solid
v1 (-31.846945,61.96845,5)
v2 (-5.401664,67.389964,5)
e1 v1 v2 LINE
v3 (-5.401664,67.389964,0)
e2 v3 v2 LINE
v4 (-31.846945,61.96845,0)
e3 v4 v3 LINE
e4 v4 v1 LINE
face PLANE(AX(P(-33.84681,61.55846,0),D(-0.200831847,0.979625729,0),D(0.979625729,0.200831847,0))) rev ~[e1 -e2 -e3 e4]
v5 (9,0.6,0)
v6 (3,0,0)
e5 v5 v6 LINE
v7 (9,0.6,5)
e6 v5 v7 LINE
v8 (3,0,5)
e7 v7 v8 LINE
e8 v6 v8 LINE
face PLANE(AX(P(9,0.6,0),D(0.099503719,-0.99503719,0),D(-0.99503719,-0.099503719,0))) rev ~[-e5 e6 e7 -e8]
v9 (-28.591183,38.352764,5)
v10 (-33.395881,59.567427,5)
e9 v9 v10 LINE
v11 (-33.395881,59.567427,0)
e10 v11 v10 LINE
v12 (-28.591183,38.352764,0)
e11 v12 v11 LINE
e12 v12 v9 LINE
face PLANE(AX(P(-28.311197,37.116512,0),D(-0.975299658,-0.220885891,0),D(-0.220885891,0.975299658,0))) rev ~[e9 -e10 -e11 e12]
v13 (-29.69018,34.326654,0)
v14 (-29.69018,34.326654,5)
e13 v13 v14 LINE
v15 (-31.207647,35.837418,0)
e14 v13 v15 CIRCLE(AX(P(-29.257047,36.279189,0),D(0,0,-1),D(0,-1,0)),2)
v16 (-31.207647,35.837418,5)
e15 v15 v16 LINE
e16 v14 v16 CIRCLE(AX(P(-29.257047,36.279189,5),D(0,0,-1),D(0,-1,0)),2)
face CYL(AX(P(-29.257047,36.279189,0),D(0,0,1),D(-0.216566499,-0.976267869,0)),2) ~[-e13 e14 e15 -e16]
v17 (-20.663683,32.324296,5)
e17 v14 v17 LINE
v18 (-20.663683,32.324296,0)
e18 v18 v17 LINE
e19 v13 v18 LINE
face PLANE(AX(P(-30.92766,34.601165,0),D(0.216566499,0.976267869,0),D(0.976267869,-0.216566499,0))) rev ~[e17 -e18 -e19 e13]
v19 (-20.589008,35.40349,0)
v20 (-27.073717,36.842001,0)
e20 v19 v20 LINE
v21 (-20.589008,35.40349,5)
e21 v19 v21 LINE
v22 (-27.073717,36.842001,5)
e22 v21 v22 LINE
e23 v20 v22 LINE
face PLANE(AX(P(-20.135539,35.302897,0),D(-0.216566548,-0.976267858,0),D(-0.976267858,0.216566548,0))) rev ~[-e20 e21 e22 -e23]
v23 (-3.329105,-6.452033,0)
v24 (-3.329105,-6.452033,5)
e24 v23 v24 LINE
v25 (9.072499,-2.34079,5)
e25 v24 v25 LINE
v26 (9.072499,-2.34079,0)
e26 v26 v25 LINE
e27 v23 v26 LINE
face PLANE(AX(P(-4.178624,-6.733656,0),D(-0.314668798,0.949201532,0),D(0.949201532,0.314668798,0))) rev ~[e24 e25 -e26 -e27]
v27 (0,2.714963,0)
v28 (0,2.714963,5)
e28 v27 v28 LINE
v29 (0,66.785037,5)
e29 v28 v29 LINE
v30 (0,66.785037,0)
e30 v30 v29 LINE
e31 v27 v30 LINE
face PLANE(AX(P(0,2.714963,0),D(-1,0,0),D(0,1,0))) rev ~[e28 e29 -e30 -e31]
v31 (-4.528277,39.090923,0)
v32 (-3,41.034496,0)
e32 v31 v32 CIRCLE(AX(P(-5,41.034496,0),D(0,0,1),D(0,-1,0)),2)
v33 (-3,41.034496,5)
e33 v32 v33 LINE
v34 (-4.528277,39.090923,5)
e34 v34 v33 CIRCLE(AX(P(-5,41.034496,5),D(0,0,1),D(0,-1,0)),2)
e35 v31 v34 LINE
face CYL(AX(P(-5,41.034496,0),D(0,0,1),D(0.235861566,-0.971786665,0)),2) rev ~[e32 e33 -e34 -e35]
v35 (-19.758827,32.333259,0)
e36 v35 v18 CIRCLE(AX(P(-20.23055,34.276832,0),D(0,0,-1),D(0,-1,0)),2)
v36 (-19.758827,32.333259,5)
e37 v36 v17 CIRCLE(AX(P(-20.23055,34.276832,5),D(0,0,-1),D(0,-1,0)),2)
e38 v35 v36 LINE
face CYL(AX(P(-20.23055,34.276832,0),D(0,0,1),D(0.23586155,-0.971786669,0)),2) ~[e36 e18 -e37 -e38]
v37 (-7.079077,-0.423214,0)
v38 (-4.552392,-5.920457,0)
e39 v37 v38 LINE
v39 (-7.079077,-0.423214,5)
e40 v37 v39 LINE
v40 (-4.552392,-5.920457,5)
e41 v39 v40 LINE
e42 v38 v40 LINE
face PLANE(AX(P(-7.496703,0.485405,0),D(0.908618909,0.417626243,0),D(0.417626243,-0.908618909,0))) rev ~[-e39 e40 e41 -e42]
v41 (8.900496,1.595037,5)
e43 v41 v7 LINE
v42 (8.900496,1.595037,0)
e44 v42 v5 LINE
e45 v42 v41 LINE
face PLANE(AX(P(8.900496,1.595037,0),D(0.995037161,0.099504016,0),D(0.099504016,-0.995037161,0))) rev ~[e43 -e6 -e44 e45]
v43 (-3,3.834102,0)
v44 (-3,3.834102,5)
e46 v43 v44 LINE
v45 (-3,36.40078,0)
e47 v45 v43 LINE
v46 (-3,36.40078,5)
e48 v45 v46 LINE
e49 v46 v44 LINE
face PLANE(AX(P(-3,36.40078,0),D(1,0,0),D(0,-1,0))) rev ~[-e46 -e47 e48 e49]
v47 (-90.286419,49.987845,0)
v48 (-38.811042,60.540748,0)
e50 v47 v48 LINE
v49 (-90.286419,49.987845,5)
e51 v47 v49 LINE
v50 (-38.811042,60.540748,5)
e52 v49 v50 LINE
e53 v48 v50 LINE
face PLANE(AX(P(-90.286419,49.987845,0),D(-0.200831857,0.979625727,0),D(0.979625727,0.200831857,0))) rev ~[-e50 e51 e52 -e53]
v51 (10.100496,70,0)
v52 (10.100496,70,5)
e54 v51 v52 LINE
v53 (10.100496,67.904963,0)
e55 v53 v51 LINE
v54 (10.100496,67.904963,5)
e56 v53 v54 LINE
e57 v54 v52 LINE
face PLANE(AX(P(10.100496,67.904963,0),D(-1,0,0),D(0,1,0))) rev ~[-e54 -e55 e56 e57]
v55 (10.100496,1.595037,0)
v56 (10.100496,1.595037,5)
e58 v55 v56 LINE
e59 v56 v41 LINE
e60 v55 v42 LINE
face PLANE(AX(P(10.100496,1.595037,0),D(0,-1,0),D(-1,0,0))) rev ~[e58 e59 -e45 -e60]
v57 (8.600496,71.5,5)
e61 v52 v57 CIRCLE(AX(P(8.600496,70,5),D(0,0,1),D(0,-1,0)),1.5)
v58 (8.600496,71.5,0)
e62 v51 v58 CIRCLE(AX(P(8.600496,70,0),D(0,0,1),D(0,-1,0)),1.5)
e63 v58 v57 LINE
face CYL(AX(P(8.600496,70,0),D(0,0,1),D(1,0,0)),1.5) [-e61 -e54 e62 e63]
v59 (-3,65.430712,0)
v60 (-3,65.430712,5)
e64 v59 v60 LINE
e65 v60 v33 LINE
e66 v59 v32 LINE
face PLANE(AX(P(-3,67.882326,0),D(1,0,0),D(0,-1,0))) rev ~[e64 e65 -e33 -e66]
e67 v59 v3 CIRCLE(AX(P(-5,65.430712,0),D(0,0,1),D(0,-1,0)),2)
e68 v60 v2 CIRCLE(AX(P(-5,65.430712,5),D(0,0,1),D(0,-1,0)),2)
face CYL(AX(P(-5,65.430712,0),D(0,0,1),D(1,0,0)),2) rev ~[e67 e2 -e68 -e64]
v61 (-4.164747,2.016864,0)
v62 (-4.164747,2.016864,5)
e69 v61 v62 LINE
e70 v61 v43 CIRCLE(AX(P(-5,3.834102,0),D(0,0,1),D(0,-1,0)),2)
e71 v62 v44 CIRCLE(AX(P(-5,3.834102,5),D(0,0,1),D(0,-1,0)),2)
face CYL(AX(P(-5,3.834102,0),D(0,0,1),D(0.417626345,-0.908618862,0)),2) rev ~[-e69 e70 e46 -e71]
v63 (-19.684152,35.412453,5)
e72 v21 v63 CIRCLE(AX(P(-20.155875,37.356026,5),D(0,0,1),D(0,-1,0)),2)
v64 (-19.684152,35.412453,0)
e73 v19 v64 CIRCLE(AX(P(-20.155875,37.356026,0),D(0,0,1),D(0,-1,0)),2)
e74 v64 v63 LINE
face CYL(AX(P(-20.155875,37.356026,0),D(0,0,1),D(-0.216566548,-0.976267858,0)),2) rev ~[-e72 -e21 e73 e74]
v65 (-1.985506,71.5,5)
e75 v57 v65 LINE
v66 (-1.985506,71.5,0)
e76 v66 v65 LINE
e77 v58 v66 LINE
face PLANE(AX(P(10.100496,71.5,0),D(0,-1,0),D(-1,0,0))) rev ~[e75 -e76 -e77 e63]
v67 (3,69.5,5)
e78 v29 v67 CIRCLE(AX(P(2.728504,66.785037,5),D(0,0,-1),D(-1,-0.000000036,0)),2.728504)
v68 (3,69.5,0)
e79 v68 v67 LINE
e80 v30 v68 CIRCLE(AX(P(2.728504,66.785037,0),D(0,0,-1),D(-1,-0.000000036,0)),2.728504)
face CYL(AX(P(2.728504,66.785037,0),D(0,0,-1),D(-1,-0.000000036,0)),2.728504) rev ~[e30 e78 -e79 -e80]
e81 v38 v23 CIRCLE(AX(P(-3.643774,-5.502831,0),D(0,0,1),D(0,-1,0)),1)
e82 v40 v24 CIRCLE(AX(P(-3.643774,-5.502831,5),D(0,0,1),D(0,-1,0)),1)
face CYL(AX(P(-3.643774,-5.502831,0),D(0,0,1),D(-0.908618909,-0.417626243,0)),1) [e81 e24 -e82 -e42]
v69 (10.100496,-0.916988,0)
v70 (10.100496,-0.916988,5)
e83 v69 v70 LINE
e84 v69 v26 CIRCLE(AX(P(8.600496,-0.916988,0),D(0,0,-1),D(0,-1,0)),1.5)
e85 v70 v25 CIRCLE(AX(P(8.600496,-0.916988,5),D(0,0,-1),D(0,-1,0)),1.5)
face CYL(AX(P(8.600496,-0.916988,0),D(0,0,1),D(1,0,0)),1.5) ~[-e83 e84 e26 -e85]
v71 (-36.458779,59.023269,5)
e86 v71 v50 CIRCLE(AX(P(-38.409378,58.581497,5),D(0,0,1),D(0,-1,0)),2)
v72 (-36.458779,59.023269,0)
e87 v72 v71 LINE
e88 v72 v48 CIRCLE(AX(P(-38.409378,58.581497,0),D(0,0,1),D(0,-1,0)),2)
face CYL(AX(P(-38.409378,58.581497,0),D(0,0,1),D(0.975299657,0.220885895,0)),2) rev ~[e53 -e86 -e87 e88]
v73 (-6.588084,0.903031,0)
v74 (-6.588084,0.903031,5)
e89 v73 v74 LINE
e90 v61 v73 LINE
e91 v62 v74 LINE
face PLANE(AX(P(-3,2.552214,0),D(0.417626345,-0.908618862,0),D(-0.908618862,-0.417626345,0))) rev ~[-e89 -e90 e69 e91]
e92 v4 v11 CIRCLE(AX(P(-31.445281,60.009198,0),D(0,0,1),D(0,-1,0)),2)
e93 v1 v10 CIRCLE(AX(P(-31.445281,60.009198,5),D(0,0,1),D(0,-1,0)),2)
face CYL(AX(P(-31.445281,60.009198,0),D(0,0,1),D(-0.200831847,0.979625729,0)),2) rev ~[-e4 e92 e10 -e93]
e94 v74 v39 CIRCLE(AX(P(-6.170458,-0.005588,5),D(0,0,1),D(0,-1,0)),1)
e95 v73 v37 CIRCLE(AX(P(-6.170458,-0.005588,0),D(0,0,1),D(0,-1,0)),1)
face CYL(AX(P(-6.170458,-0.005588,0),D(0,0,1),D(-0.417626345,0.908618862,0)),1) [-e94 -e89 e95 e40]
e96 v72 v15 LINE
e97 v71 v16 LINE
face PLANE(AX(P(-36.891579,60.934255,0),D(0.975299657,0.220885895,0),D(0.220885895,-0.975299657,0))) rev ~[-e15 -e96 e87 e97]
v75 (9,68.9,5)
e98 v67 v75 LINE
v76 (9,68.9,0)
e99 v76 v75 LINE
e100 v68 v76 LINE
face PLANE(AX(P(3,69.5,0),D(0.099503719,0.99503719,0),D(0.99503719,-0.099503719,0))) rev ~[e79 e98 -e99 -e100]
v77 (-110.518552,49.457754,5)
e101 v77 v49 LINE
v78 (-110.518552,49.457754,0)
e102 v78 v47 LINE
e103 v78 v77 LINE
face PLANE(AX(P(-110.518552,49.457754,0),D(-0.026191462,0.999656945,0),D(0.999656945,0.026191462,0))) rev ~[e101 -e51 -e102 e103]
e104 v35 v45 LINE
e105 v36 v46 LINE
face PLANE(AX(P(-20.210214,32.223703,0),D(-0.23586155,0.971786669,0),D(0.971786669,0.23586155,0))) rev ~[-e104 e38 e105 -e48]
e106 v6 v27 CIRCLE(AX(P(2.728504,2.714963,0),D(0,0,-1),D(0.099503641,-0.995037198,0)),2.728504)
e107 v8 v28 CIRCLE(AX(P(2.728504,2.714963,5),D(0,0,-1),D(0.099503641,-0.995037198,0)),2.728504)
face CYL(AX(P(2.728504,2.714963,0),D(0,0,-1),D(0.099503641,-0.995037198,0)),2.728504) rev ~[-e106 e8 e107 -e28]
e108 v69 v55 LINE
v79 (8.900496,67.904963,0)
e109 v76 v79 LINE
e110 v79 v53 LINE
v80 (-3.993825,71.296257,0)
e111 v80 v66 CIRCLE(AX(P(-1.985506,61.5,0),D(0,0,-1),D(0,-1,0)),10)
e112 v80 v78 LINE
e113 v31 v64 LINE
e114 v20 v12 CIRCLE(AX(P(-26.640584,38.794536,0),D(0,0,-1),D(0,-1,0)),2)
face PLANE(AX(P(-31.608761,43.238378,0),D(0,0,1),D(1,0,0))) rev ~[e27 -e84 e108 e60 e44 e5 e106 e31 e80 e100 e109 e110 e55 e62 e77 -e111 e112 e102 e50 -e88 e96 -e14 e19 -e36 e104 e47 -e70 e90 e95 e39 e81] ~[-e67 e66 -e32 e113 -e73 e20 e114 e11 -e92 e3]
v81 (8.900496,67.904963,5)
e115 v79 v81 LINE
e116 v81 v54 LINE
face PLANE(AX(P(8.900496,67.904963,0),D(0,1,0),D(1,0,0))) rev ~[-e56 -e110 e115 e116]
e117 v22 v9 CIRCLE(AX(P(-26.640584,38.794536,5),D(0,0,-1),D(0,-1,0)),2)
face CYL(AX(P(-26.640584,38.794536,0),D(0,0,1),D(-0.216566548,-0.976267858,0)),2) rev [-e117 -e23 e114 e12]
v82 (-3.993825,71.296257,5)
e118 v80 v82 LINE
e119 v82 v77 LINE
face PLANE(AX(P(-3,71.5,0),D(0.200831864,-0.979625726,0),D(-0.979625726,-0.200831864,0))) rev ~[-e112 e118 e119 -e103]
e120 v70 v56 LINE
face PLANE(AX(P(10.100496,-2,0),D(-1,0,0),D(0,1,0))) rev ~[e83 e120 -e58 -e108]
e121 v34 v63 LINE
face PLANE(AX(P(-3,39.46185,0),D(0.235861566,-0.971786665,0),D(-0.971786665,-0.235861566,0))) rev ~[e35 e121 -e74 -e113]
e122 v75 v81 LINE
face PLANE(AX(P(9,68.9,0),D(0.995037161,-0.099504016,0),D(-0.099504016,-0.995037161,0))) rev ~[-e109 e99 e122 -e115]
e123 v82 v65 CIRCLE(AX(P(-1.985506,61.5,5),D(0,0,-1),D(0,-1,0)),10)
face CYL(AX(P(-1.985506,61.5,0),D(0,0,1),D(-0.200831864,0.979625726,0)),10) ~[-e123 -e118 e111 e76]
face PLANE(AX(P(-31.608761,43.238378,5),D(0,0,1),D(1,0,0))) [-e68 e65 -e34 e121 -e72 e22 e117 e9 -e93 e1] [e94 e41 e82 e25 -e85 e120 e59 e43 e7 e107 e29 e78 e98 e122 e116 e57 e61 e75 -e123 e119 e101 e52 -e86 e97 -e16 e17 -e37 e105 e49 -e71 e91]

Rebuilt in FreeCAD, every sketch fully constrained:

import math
import FreeCAD as App
import Part
import Sketcher
from FreeCAD import Vector
Q = App.Units.Quantity


def edges_at(feature, points):
    """Names of the edges that pass closest to the given points."""
    edges = feature.Shape.Edges
    near = lambda p: min(range(len(edges)), key=lambda i: edges[i].distToShape(Part.Vertex(*p))[0])
    return sorted({f"Edge{near(p) + 1}" for p in points})

doc = App.newDocument("Part")
body = doc.addObject("PartDesign::Body", "Body")

sketch1 = doc.addObject("Sketcher::SketchObject", "Sketch")
body.addObject(sketch1)
sketch1.AttachmentSupport = (doc.XY_Plane, [""])
sketch1.MapMode = "FlatFace"
sketch1.addGeometry(Part.LineSegment(Vector(9, 0.6, 0), Vector(3, 0, 0)), False)
sketch1.addGeometry(Part.ArcOfCircle(Part.Circle(Vector(2.728504, 2.714963, 0), Vector(0, 0, 1), 2.728504), math.radians(179.999998), math.radians(275.710589)), False)
sketch1.addGeometry(Part.LineSegment(Vector(0, 2.714963, 0), Vector(0, 66.785037, 0)), False)
sketch1.addGeometry(Part.ArcOfCircle(Part.Circle(Vector(2.728504, 66.785037, 0), Vector(0, 0, 1), 2.728504), math.radians(84.289411), math.radians(180.000002)), False)
sketch1.addGeometry(Part.LineSegment(Vector(3, 69.5, 0), Vector(9, 68.9, 0)), False)
sketch1.addGeometry(Part.LineSegment(Vector(9, 68.9, 0), Vector(8.900496, 67.904963, 0)), False)
sketch1.addGeometry(Part.LineSegment(Vector(8.900496, 67.904963, 0), Vector(10.100496, 67.904963, 0)), False)
sketch1.addGeometry(Part.LineSegment(Vector(10.100496, 67.904963, 0), Vector(10.100496, 71.5, 0)), False)
sketch1.addGeometry(Part.LineSegment(Vector(10.100496, 71.5, 0), Vector(-3, 71.5, 0)), False)
sketch1.addGeometry(Part.LineSegment(Vector(-3, 71.5, 0), Vector(-110.518552, 49.457754, 0)), False)
sketch1.addGeometry(Part.LineSegment(Vector(-110.518552, 49.457754, 0), Vector(-90.286419, 49.987845, 0)), False)
sketch1.addGeometry(Part.LineSegment(Vector(-90.286419, 49.987845, 0), Vector(-36.891579, 60.934255, 0)), False)
sketch1.addGeometry(Part.LineSegment(Vector(-36.891579, 60.934255, 0), Vector(-30.92766, 34.601165, 0)), False)
sketch1.addGeometry(Part.LineSegment(Vector(-30.92766, 34.601165, 0), Vector(-20.210214, 32.223703, 0)), False)
sketch1.addGeometry(Part.LineSegment(Vector(-20.210214, 32.223703, 0), Vector(-3, 36.40078, 0)), False)
sketch1.addGeometry(Part.LineSegment(Vector(-3, 36.40078, 0), Vector(-3, 2.552214, 0)), False)
sketch1.addGeometry(Part.LineSegment(Vector(-3, 2.552214, 0), Vector(-7.496703, 0.485405, 0)), False)
sketch1.addGeometry(Part.LineSegment(Vector(-7.496703, 0.485405, 0), Vector(-4.178624, -6.733656, 0)), False)
sketch1.addGeometry(Part.LineSegment(Vector(-4.178624, -6.733656, 0), Vector(10.100496, -2, 0)), False)
sketch1.addGeometry(Part.LineSegment(Vector(10.100496, -2, 0), Vector(10.100496, 1.595037, 0)), False)
sketch1.addGeometry(Part.LineSegment(Vector(10.100496, 1.595037, 0), Vector(8.900496, 1.595037, 0)), False)
sketch1.addGeometry(Part.LineSegment(Vector(8.900496, 1.595037, 0), Vector(9, 0.6, 0)), False)
sketch1.addGeometry(Part.LineSegment(Vector(-20.135539, 35.302897, 0), Vector(-28.311197, 37.116512, 0)), False)
sketch1.addGeometry(Part.LineSegment(Vector(-28.311197, 37.116512, 0), Vector(-33.84681, 61.55846, 0)), False)
sketch1.addGeometry(Part.LineSegment(Vector(-33.84681, 61.55846, 0), Vector(-3, 67.882326, 0)), False)
sketch1.addGeometry(Part.LineSegment(Vector(-3, 67.882326, 0), Vector(-3, 39.46185, 0)), False)
sketch1.addGeometry(Part.LineSegment(Vector(-3, 39.46185, 0), Vector(-20.135539, 35.302897, 0)), False)
sketch1.addConstraint(Sketcher.Constraint("Coincident", 0, 2, 1, 2))
sketch1.addConstraint(Sketcher.Constraint("Coincident", 1, 1, 2, 1))
sketch1.addConstraint(Sketcher.Constraint("Coincident", 2, 2, 3, 2))
sketch1.addConstraint(Sketcher.Constraint("Coincident", 3, 1, 4, 1))
sketch1.addConstraint(Sketcher.Constraint("Coincident", 4, 2, 5, 1))
sketch1.addConstraint(Sketcher.Constraint("Coincident", 5, 2, 6, 1))
sketch1.addConstraint(Sketcher.Constraint("Coincident", 6, 2, 7, 1))
sketch1.addConstraint(Sketcher.Constraint("Coincident", 7, 2, 8, 1))
sketch1.addConstraint(Sketcher.Constraint("Coincident", 8, 2, 9, 1))
sketch1.addConstraint(Sketcher.Constraint("Coincident", 9, 2, 10, 1))
sketch1.addConstraint(Sketcher.Constraint("Coincident", 10, 2, 11, 1))
sketch1.addConstraint(Sketcher.Constraint("Coincident", 11, 2, 12, 1))
sketch1.addConstraint(Sketcher.Constraint("Coincident", 12, 2, 13, 1))
sketch1.addConstraint(Sketcher.Constraint("Coincident", 13, 2, 14, 1))
sketch1.addConstraint(Sketcher.Constraint("Coincident", 14, 2, 15, 1))
sketch1.addConstraint(Sketcher.Constraint("Coincident", 15, 2, 16, 1))
sketch1.addConstraint(Sketcher.Constraint("Coincident", 16, 2, 17, 1))
sketch1.addConstraint(Sketcher.Constraint("Coincident", 17, 2, 18, 1))
sketch1.addConstraint(Sketcher.Constraint("Coincident", 18, 2, 19, 1))
sketch1.addConstraint(Sketcher.Constraint("Coincident", 19, 2, 20, 1))
sketch1.addConstraint(Sketcher.Constraint("Coincident", 20, 2, 21, 1))
sketch1.addConstraint(Sketcher.Constraint("Coincident", 21, 2, 0, 1))
sketch1.addConstraint(Sketcher.Constraint("Coincident", 22, 2, 23, 1))
sketch1.addConstraint(Sketcher.Constraint("Coincident", 23, 2, 24, 1))
sketch1.addConstraint(Sketcher.Constraint("Coincident", 24, 2, 25, 1))
sketch1.addConstraint(Sketcher.Constraint("Coincident", 25, 2, 26, 1))
sketch1.addConstraint(Sketcher.Constraint("Coincident", 26, 2, 22, 1))
sketch1.addConstraint(Sketcher.Constraint("Vertical", 2))
sketch1.addConstraint(Sketcher.Constraint("Horizontal", 6))
sketch1.addConstraint(Sketcher.Constraint("Vertical", 7))
sketch1.addConstraint(Sketcher.Constraint("Horizontal", 8))
sketch1.addConstraint(Sketcher.Constraint("Vertical", 15))
sketch1.addConstraint(Sketcher.Constraint("Vertical", 19))
sketch1.addConstraint(Sketcher.Constraint("Horizontal", 20))
sketch1.addConstraint(Sketcher.Constraint("Vertical", 25))
sketch1.addConstraint(Sketcher.Constraint("PointOnObject", 0, 2, -1))
sketch1.addConstraint(Sketcher.Constraint("PointOnObject", 1, 1, -2))
sketch1.addConstraint(Sketcher.Constraint("Distance", 5, Q("1 mm")))
sketch1.addConstraint(Sketcher.Constraint("Distance", 12, Q("26.999999 mm")))
sketch1.addConstraint(Sketcher.Constraint("Distance", 21, Q("1 mm")))
sketch1.addConstraint(Sketcher.Constraint("DistanceX", 6, 1, 6, 2, Q("1.2 mm")))
sketch1.addConstraint(Sketcher.Constraint("DistanceX", 20, 2, 20, 1, Q("1.2 mm")))
sketch1.addConstraint(Sketcher.Constraint("DistanceX", -1, 1, 0, 2, Q("3 mm")))
sketch1.addConstraint(Sketcher.Constraint("DistanceX", -1, 1, 3, 1, Q("3 mm")))
sketch1.addConstraint(Sketcher.Constraint("DistanceX", -1, 1, 4, 2, Q("9 mm")))
sketch1.addConstraint(Sketcher.Constraint("DistanceX", 8, 2, -1, 1, Q("3 mm")))
sketch1.addConstraint(Sketcher.Constraint("DistanceX", 14, 2, -1, 1, Q("3 mm")))
sketch1.addConstraint(Sketcher.Constraint("DistanceY", 18, 2, -1, 1, Q("2 mm")))
sketch1.addConstraint(Sketcher.Constraint("DistanceX", -1, 1, 21, 2, Q("9 mm")))
sketch1.addConstraint(Sketcher.Constraint("DistanceX", 24, 2, -1, 1, Q("3 mm")))
sketch1.addConstraint(Sketcher.Constraint("DistanceY", 3, 1, 7, 2, Q("2 mm")))
sketch1.addConstraint(Sketcher.Constraint("DistanceY", -1, 1, 3, 1, Q("69.5 mm")))
sketch1.addConstraint(Sketcher.Constraint("DistanceY", -1, 1, 4, 2, Q("68.9 mm")))
sketch1.addConstraint(Sketcher.Constraint("DistanceY", -1, 1, 21, 2, Q("0.6 mm")))
sketch1.addConstraint(Sketcher.Constraint("DistanceY", 1, 3, 5, 2, Q("65.19 mm")))
sketch1.addConstraint(Sketcher.Constraint("Radius", 1, Q("2.728504 mm")))
sketch1.addConstraint(Sketcher.Constraint("Radius", 3, Q("2.728504 mm")))
sketch1.addConstraint(Sketcher.Constraint("Distance", 22, Q("8.3744 mm")))
sketch1.addConstraint(Sketcher.Constraint("DistanceY", 16, 2, 13, 2, Q("31.738298 mm")))
sketch1.addConstraint(Sketcher.Constraint("Distance", 14, Q("17.709868 mm")))
sketch1.addConstraint(Sketcher.Constraint("DistanceY", 2, 1, 2, 2, Q("64.070074 mm")))
sketch1.addConstraint(Sketcher.Constraint("DistanceY", 15, 2, 15, 1, Q("33.848566 mm")))
sketch1.addConstraint(Sketcher.Constraint("DistanceY", 19, 1, 19, 2, Q("3.595037 mm")))
sketch1.addConstraint(Sketcher.Constraint("DistanceY", 25, 2, 25, 1, Q("28.420476 mm")))
sketch1.addConstraint(Sketcher.Constraint("DistanceX", 9, 2, -1, 1, Q("110.518552 mm")))
sketch1.addConstraint(Sketcher.Constraint("DistanceX", 10, 2, -1, 1, Q("90.286419 mm")))
sketch1.addConstraint(Sketcher.Constraint("DistanceX", 11, 2, -1, 1, Q("36.891579 mm")))
sketch1.addConstraint(Sketcher.Constraint("DistanceX", 12, 2, -1, 1, Q("30.92766 mm")))
sketch1.addConstraint(Sketcher.Constraint("DistanceY", -1, 1, 14, 2, Q("36.40078 mm")))
sketch1.addConstraint(Sketcher.Constraint("DistanceX", 23, 2, -1, 1, Q("33.84681 mm")))
sketch1.addConstraint(Sketcher.Constraint("DistanceY", -1, 1, 23, 2, Q("61.55846 mm")))
sketch1.addConstraint(Sketcher.Constraint("DistanceY", -1, 1, 25, 2, Q("39.46185 mm")))
sketch1.addConstraint(Sketcher.Constraint("DistanceX", 26, 2, -1, 1, Q("20.135539 mm")))
sketch1.addConstraint(Sketcher.Constraint("DistanceY", 1, 1, 9, 2, Q("46.742791 mm")))
sketch1.addConstraint(Sketcher.Constraint("DistanceY", 9, 2, 10, 2, Q("0.530091 mm")))
sketch1.addConstraint(Sketcher.Constraint("DistanceY", 13, 2, 11, 2, Q("28.710552 mm")))
sketch1.addConstraint(Sketcher.Constraint("DistanceY", 1, 1, 13, 2, Q("29.50874 mm")))
sketch1.addConstraint(Sketcher.Constraint("DistanceY", 1, 3, 13, 2, Q("29.50874 mm")))
sketch1.addConstraint(Sketcher.Constraint("DistanceX", 13, 2, 16, 2, Q("12.713511 mm")))
sketch1.addConstraint(Sketcher.Constraint("DistanceX", 16, 2, 17, 2, Q("3.318079 mm")))
sketch1.addConstraint(Sketcher.Constraint("DistanceY", 17, 2, 16, 2, Q("7.219061 mm")))
sketch1.addConstraint(Sketcher.Constraint("DistanceY", 13, 2, 22, 2, Q("4.892809 mm")))
sketch1.addConstraint(Sketcher.Constraint("DistanceY", 12, 2, 26, 2, Q("0.701732 mm")))
pad1 = doc.addObject("PartDesign::Pad", "Pad")
body.addObject(pad1)
pad1.Profile = sketch1
pad1.Length = 5
doc.recompute()

fillet = doc.addObject("PartDesign::Fillet", "Fillet")
body.addObject(fillet)
fillet.Base = (pad1, edges_at(pad1, [(10.1, 71.5, 2.5), (10.1, -2, 2.5)]))
fillet.Radius = 1.5
doc.recompute()

fillet2 = doc.addObject("PartDesign::Fillet", "Fillet001")
body.addObject(fillet2)
fillet2.Base = (fillet, edges_at(fillet, [
    (-3, 2.552, 2.5),
    (-3, 39.462, 2.5),
    (-20.136, 35.303, 2.5),
    (-28.311, 37.117, 2.5),
    (-33.847, 61.558, 2.5),
    (-3, 67.882, 2.5),
    (-36.892, 60.934, 2.5),
    (-30.928, 34.601, 2.5),
    (-20.21, 32.224, 2.5),
]))
fillet2.Radius = 2
doc.recompute()

fillet3 = doc.addObject("PartDesign::Fillet", "Fillet002")
body.addObject(fillet3)
fillet3.Base = (fillet2, edges_at(fillet2, [(-3, 71.5, 2.5)]))
fillet3.Radius = 10
doc.recompute()

fillet4 = doc.addObject("PartDesign::Fillet", "Fillet003")
body.addObject(fillet4)
fillet4.Base = (fillet3, edges_at(fillet3, [(-4.179, -6.734, 2.5), (-7.497, 0.485, 2.5)]))
fillet4.Radius = 1

doc.recompute()
